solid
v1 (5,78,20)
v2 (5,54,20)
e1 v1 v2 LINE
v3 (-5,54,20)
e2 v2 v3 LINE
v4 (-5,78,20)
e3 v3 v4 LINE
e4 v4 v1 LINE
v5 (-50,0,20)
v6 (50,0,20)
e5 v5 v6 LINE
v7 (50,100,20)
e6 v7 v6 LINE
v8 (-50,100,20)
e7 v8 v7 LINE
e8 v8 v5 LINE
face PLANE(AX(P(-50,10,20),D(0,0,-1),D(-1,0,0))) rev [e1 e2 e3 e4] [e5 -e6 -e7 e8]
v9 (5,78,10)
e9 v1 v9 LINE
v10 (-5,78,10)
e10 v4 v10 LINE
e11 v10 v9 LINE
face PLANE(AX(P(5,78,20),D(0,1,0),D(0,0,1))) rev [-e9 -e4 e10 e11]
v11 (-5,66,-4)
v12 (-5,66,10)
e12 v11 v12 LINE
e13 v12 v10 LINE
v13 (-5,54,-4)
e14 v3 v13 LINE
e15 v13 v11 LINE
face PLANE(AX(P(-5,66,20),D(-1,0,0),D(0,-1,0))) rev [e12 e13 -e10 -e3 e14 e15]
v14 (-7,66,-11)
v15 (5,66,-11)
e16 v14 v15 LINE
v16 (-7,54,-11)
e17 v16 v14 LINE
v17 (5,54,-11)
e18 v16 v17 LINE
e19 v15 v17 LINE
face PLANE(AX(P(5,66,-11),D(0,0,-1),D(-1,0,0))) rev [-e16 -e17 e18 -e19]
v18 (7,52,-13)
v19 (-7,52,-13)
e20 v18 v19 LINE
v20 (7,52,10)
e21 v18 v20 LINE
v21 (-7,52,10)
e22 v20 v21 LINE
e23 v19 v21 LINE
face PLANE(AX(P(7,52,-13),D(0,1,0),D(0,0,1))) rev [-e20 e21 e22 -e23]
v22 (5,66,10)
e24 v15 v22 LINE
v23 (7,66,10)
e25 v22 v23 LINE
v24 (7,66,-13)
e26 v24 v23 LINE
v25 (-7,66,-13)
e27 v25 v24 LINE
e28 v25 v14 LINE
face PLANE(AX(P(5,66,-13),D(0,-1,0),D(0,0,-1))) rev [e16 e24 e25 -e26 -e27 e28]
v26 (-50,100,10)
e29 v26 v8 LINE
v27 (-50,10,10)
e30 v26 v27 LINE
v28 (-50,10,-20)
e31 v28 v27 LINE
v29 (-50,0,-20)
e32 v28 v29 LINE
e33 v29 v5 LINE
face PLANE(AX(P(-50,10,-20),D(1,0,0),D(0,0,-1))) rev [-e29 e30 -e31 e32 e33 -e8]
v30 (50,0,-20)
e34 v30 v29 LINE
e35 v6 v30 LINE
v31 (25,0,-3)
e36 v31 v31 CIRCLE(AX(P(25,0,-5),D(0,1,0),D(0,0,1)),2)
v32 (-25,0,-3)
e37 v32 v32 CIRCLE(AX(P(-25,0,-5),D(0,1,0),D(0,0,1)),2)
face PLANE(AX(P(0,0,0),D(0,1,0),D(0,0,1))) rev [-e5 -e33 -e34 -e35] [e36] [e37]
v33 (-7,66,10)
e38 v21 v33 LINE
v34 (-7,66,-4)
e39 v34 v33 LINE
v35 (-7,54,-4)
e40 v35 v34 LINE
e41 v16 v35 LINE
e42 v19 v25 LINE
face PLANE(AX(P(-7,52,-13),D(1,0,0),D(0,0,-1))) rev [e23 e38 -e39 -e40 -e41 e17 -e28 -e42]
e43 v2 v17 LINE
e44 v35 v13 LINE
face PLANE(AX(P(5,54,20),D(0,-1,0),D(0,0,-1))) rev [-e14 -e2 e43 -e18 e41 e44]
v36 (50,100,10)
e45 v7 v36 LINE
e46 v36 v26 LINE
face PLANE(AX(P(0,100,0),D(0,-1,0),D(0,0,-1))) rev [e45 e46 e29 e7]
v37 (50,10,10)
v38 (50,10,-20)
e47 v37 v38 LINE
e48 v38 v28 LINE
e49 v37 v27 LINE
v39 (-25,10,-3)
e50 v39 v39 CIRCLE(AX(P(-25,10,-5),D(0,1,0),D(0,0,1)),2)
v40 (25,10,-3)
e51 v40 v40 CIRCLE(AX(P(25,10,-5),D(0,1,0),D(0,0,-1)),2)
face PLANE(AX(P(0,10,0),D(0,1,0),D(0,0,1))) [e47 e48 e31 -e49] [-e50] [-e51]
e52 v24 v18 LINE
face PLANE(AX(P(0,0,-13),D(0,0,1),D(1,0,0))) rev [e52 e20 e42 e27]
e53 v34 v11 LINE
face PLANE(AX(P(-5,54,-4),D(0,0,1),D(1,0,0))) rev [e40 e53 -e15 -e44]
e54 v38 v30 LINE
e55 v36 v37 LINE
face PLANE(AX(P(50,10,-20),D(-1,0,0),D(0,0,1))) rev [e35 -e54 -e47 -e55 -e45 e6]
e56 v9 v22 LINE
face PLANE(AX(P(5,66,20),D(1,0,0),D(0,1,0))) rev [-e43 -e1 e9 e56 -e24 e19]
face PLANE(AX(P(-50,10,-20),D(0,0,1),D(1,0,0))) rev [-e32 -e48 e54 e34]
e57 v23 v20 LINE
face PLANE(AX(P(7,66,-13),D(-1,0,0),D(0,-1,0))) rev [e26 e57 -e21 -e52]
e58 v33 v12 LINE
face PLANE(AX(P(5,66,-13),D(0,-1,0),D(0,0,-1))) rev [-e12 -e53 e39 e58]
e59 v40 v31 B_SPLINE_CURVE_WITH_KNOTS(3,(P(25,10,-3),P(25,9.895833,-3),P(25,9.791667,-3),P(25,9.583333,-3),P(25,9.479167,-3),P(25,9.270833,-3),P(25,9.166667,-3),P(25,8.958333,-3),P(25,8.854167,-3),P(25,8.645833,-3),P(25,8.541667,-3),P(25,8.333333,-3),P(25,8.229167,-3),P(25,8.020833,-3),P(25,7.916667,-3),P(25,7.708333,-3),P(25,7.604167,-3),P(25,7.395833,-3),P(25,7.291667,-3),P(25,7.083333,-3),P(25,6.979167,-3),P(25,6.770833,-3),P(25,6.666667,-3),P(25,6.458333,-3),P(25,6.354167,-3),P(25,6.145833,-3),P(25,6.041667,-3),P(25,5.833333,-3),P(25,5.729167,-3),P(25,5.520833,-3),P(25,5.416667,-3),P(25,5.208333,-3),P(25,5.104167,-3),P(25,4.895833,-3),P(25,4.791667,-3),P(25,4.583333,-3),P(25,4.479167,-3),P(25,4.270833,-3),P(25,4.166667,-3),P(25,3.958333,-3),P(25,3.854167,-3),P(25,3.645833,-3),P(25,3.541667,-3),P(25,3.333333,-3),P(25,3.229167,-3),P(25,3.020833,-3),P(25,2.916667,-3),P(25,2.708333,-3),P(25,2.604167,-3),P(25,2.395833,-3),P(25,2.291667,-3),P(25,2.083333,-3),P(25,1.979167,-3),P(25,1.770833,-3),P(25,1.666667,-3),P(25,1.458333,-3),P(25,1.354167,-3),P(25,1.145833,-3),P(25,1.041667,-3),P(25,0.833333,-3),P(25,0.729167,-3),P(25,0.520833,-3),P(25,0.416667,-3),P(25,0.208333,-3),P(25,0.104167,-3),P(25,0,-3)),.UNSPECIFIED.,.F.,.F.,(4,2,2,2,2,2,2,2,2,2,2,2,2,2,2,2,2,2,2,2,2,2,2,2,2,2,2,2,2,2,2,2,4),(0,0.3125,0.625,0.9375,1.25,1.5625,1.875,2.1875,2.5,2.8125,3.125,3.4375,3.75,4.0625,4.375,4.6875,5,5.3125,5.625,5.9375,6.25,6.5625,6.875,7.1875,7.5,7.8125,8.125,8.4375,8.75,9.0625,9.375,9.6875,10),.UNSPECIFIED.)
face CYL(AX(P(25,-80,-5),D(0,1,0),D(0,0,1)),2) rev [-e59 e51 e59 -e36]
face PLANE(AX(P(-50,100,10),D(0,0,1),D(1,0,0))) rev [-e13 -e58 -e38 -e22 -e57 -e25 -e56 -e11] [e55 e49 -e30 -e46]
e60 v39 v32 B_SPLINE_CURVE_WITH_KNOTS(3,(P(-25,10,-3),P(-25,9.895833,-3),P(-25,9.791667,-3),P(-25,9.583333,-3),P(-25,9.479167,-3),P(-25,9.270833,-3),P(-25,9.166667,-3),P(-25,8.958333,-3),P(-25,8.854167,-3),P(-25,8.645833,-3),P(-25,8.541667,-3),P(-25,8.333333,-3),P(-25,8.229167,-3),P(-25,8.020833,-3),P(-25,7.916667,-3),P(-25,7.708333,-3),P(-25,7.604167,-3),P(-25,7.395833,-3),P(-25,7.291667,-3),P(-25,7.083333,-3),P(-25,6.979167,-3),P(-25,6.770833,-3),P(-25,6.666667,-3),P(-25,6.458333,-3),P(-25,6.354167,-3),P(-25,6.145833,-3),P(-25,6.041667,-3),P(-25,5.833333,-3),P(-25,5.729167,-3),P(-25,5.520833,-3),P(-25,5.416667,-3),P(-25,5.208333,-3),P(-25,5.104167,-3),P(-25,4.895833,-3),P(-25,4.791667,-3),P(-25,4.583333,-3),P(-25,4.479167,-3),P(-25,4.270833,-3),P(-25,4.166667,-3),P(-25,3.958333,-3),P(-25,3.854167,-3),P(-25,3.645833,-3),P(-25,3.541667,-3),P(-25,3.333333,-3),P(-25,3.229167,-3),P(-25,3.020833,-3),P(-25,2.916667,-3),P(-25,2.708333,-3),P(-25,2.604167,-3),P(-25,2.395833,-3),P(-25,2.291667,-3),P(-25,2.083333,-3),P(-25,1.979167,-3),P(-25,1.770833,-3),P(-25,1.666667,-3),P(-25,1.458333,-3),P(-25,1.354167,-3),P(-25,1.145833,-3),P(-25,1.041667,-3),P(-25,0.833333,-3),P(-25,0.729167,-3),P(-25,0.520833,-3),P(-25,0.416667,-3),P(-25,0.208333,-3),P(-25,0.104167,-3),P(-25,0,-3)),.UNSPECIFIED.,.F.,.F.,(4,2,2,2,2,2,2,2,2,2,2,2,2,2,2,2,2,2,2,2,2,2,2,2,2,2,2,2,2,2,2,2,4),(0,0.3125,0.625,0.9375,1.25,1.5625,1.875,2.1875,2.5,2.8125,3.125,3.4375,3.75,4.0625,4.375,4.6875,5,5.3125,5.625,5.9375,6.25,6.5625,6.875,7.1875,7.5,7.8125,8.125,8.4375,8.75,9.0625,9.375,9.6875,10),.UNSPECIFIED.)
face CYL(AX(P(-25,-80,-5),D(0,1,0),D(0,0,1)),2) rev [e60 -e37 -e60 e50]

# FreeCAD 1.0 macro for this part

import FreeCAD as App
import Part
import Sketcher

doc = App.newDocument("Part")
body = doc.addObject("PartDesign::Body", "Body")

# Sketch on XZ plane
sketch1 = body.newObject("Sketcher::SketchObject", "Sketch")
sketch1.AttachmentSupport = (doc.getObject("XZ_Plane"), [""])
sketch1.MapMode = "FlatFace"
sketch1.addGeometry(Part.LineSegment(App.Vector(-50, -20, 0), App.Vector(-50, 20, 0)), False)
sketch1.addGeometry(Part.LineSegment(App.Vector(-50, 20, 0), App.Vector(50, 20, 0)), False)
sketch1.addGeometry(Part.LineSegment(App.Vector(50, 20, 0), App.Vector(50, -20, 0)), False)
sketch1.addGeometry(Part.LineSegment(App.Vector(50, -20, 0), App.Vector(-50, -20, 0)), False)
sketch1.addConstraint(Sketcher.Constraint("Coincident", 0, 2, 1, 1))
sketch1.addConstraint(Sketcher.Constraint("Coincident", 1, 2, 2, 1))
sketch1.addConstraint(Sketcher.Constraint("Coincident", 2, 2, 3, 1))
sketch1.addConstraint(Sketcher.Constraint("Coincident", 3, 2, 0, 1))
sketch1.addConstraint(Sketcher.Constraint("Vertical", 0))
sketch1.addConstraint(Sketcher.Constraint("Horizontal", 1))
sketch1.addConstraint(Sketcher.Constraint("Vertical", 2))
sketch1.addConstraint(Sketcher.Constraint("Horizontal", 3))
sketch1.addConstraint(Sketcher.Constraint("Symmetric", 0, 2, 2, 2, -1, 1))
sketch1.addConstraint(Sketcher.Constraint("DistanceX", 1, 1, 1, 2, 100.0))
sketch1.addConstraint(Sketcher.Constraint("DistanceY", 0, 1, 0, 2, 40.0))
pad1 = body.newObject("PartDesign::Pad", "Pad")
pad1.Profile = sketch1
pad1.Length = 10
pad1.Reversed = True

# Sketch on XZ plane
sketch2 = body.newObject("Sketcher::SketchObject", "Sketch001")
sketch2.AttachmentSupport = (doc.getObject("XZ_Plane"), [""])
sketch2.MapMode = "FlatFace"
sketch2.AttachmentOffset = App.Placement(App.Vector(0, 0, -10), App.Rotation())
sketch2.addGeometry(Part.LineSegment(App.Vector(-50, 10, 0), App.Vector(-50, 20, 0)), False)
sketch2.addGeometry(Part.LineSegment(App.Vector(-50, 20, 0), App.Vector(50, 20, 0)), False)
sketch2.addGeometry(Part.LineSegment(App.Vector(50, 20, 0), App.Vector(50, 10, 0)), False)
sketch2.addGeometry(Part.LineSegment(App.Vector(50, 10, 0), App.Vector(-50, 10, 0)), False)
sketch2.addConstraint(Sketcher.Constraint("Coincident", 0, 2, 1, 1))
sketch2.addConstraint(Sketcher.Constraint("Coincident", 1, 2, 2, 1))
sketch2.addConstraint(Sketcher.Constraint("Coincident", 2, 2, 3, 1))
sketch2.addConstraint(Sketcher.Constraint("Coincident", 3, 2, 0, 1))
sketch2.addConstraint(Sketcher.Constraint("Vertical", 0))
sketch2.addConstraint(Sketcher.Constraint("Horizontal", 1))
sketch2.addConstraint(Sketcher.Constraint("Vertical", 2))
sketch2.addConstraint(Sketcher.Constraint("Horizontal", 3))
sketch2.addConstraint(Sketcher.Constraint("DistanceX", 1, 1, 1, 2, 100.0))
sketch2.addConstraint(Sketcher.Constraint("DistanceY", 0, 1, 0, 2, 10.0))
sketch2.addConstraint(Sketcher.Constraint("DistanceX", 0, 2, -1, 1, 50.0))
sketch2.addConstraint(Sketcher.Constraint("DistanceY", -1, 1, 0, 2, 20.0))
pad2 = body.newObject("PartDesign::Pad", "Pad001")
pad2.Profile = sketch2
pad2.Length = 90
pad2.Reversed = True

# Sketch on XZ plane
sketch3 = body.newObject("Sketcher::SketchObject", "Sketch002")
sketch3.AttachmentSupport = (doc.getObject("XZ_Plane"), [""])
sketch3.MapMode = "FlatFace"
sketch3.AttachmentOffset = App.Placement(App.Vector(0, 0, -10), App.Rotation())
sketch3.addGeometry(Part.Circle(App.Vector(-25, -5, 0), App.Vector(0, 0, 1), 2), False)
sketch3.addGeometry(Part.Circle(App.Vector(25, -5, 0), App.Vector(0, 0, 1), 2), False)
sketch3.addConstraint(Sketcher.Constraint("Equal", 0, 1))
sketch3.addConstraint(Sketcher.Constraint("Symmetric", 0, 3, 1, 3, -2))
sketch3.addConstraint(Sketcher.Constraint("Diameter", 0, 4.0))
sketch3.addConstraint(Sketcher.Constraint("DistanceX", 0, 3, -1, 1, 25.0))
sketch3.addConstraint(Sketcher.Constraint("DistanceY", 0, 3, -1, 1, 5.0))
pocket1 = body.newObject("PartDesign::Pocket", "Pocket")
pocket1.Profile = sketch3
pocket1.Length = 90
pocket1.Reversed = True

# Sketch on XY plane
sketch4 = body.newObject("Sketcher::SketchObject", "Sketch003")
sketch4.AttachmentSupport = (doc.getObject("XY_Plane"), [""])
sketch4.MapMode = "FlatFace"
sketch4.AttachmentOffset = App.Placement(App.Vector(0, 0, 10), App.Rotation())
sketch4.addGeometry(Part.LineSegment(App.Vector(5, 66, 0), App.Vector(5, 54, 0)), False)
sketch4.addGeometry(Part.LineSegment(App.Vector(5, 54, 0), App.Vector(-5, 54, 0)), False)
sketch4.addGeometry(Part.LineSegment(App.Vector(-5, 54, 0), App.Vector(-5, 66, 0)), False)
sketch4.addGeometry(Part.LineSegment(App.Vector(-5, 66, 0), App.Vector(5, 66, 0)), False)
sketch4.addConstraint(Sketcher.Constraint("Coincident", 0, 2, 1, 1))
sketch4.addConstraint(Sketcher.Constraint("Coincident", 1, 2, 2, 1))
sketch4.addConstraint(Sketcher.Constraint("Coincident", 2, 2, 3, 1))
sketch4.addConstraint(Sketcher.Constraint("Coincident", 3, 2, 0, 1))
sketch4.addConstraint(Sketcher.Constraint("Vertical", 0))
sketch4.addConstraint(Sketcher.Constraint("Horizontal", 1))
sketch4.addConstraint(Sketcher.Constraint("Vertical", 2))
sketch4.addConstraint(Sketcher.Constraint("Horizontal", 3))
sketch4.addConstraint(Sketcher.Constraint("DistanceX", 1, 2, 1, 1, 10.0))
sketch4.addConstraint(Sketcher.Constraint("DistanceY", 0, 2, 0, 1, 12.0))
sketch4.addConstraint(Sketcher.Constraint("DistanceX", -1, 1, 0, 2, 5.0))
sketch4.addConstraint(Sketcher.Constraint("DistanceY", -1, 1, 0, 2, 54.0))
pocket2 = body.newObject("PartDesign::Pocket", "Pocket001")
pocket2.Profile = sketch4
pocket2.Length = 10
pocket2.Reversed = True

# Sketch on XY plane
sketch5 = body.newObject("Sketcher::SketchObject", "Sketch004")
sketch5.AttachmentSupport = (doc.getObject("XY_Plane"), [""])
sketch5.MapMode = "FlatFace"
sketch5.AttachmentOffset = App.Placement(App.Vector(0, 0, 10), App.Rotation())
sketch5.addGeometry(Part.LineSegment(App.Vector(5, 54, 0), App.Vector(5, 66, 0)), False)
sketch5.addGeometry(Part.LineSegment(App.Vector(5, 66, 0), App.Vector(7, 66, 0)), False)
sketch5.addGeometry(Part.LineSegment(App.Vector(7, 66, 0), App.Vector(7, 52, 0)), False)
sketch5.addGeometry(Part.LineSegment(App.Vector(7, 52, 0), App.Vector(-7, 52, 0)), False)
sketch5.addGeometry(Part.LineSegment(App.Vector(-7, 52, 0), App.Vector(-7, 66, 0)), False)
sketch5.addGeometry(Part.LineSegment(App.Vector(-7, 66, 0), App.Vector(-5, 66, 0)), False)
sketch5.addGeometry(Part.LineSegment(App.Vector(-5, 66, 0), App.Vector(-5, 54, 0)), False)
sketch5.addGeometry(Part.LineSegment(App.Vector(-5, 54, 0), App.Vector(5, 54, 0)), False)
sketch5.addConstraint(Sketcher.Constraint("Coincident", 0, 2, 1, 1))
sketch5.addConstraint(Sketcher.Constraint("Coincident", 1, 2, 2, 1))
sketch5.addConstraint(Sketcher.Constraint("Coincident", 2, 2, 3, 1))
sketch5.addConstraint(Sketcher.Constraint("Coincident", 3, 2, 4, 1))
sketch5.addConstraint(Sketcher.Constraint("Coincident", 4, 2, 5, 1))
sketch5.addConstraint(Sketcher.Constraint("Coincident", 5, 2, 6, 1))
sketch5.addConstraint(Sketcher.Constraint("Coincident", 6, 2, 7, 1))
sketch5.addConstraint(Sketcher.Constraint("Coincident", 7, 2, 0, 1))
sketch5.addConstraint(Sketcher.Constraint("Vertical", 0))
sketch5.addConstraint(Sketcher.Constraint("Horizontal", 1))
sketch5.addConstraint(Sketcher.Constraint("Vertical", 2))
sketch5.addConstraint(Sketcher.Constraint("Horizontal", 3))
sketch5.addConstraint(Sketcher.Constraint("Vertical", 4))
sketch5.addConstraint(Sketcher.Constraint("Horizontal", 5))
sketch5.addConstraint(Sketcher.Constraint("Vertical", 6))
sketch5.addConstraint(Sketcher.Constraint("Horizontal", 7))
sketch5.addConstraint(Sketcher.Constraint("Symmetric", 1, 2, 4, 2, -2))
sketch5.addConstraint(Sketcher.Constraint("Equal", 1, 5))
sketch5.addConstraint(Sketcher.Constraint("Equal", 3, 2))
sketch5.addConstraint(Sketcher.Constraint("DistanceX", 1, 1, 1, 2, 2.0))
sketch5.addConstraint(Sketcher.Constraint("DistanceX", 3, 2, 3, 1, 14.0))
sketch5.addConstraint(Sketcher.Constraint("DistanceY", 0, 1, 0, 2, 12.0))
sketch5.addConstraint(Sketcher.Constraint("DistanceY", -1, 1, 0, 2, 66.0))
pad3 = body.newObject("PartDesign::Pad", "Pad002")
pad3.Profile = sketch5
pad3.Length = 23
pad3.Reversed = True

# Sketch on XZ plane
sketch6 = body.newObject("Sketcher::SketchObject", "Sketch005")
sketch6.AttachmentSupport = (doc.getObject("XZ_Plane"), [""])
sketch6.MapMode = "FlatFace"
sketch6.AttachmentOffset = App.Placement(App.Vector(0, 0, -54), App.Rotation())
sketch6.addGeometry(Part.LineSegment(App.Vector(-5, -13, 0), App.Vector(-5, -11, 0)), False)
sketch6.addGeometry(Part.LineSegment(App.Vector(-5, -11, 0), App.Vector(5, -11, 0)), False)
sketch6.addGeometry(Part.LineSegment(App.Vector(5, -11, 0), App.Vector(5, -13, 0)), False)
sketch6.addGeometry(Part.LineSegment(App.Vector(5, -13, 0), App.Vector(-5, -13, 0)), False)
sketch6.addConstraint(Sketcher.Constraint("Coincident", 0, 2, 1, 1))
sketch6.addConstraint(Sketcher.Constraint("Coincident", 1, 2, 2, 1))
sketch6.addConstraint(Sketcher.Constraint("Coincident", 2, 2, 3, 1))
sketch6.addConstraint(Sketcher.Constraint("Coincident", 3, 2, 0, 1))
sketch6.addConstraint(Sketcher.Constraint("Vertical", 0))
sketch6.addConstraint(Sketcher.Constraint("Horizontal", 1))
sketch6.addConstraint(Sketcher.Constraint("Vertical", 2))
sketch6.addConstraint(Sketcher.Constraint("Horizontal", 3))
sketch6.addConstraint(Sketcher.Constraint("DistanceX", 1, 1, 1, 2, 10.0))
sketch6.addConstraint(Sketcher.Constraint("DistanceY", 0, 1, 0, 2, 2.0))
sketch6.addConstraint(Sketcher.Constraint("DistanceX", 0, 2, -1, 1, 5.0))
sketch6.addConstraint(Sketcher.Constraint("DistanceY", 0, 2, -1, 1, 11.0))
pad4 = body.newObject("PartDesign::Pad", "Pad003")
pad4.Profile = sketch6
pad4.Length = 12
pad4.Reversed = True

# Sketch on XZ plane
sketch7 = body.newObject("Sketcher::SketchObject", "Sketch006")
sketch7.AttachmentSupport = (doc.getObject("XZ_Plane"), [""])
sketch7.MapMode = "FlatFace"
sketch7.AttachmentOffset = App.Placement(App.Vector(0, 0, -66), App.Rotation())
sketch7.addGeometry(Part.LineSegment(App.Vector(-7, -11, 0), App.Vector(-7, -4, 0)), False)
sketch7.addGeometry(Part.LineSegment(App.Vector(-7, -4, 0), App.Vector(-5, -4, 0)), False)
sketch7.addGeometry(Part.LineSegment(App.Vector(-5, -4, 0), App.Vector(-5, -11, 0)), False)
sketch7.addGeometry(Part.LineSegment(App.Vector(-5, -11, 0), App.Vector(-7, -11, 0)), False)
sketch7.addConstraint(Sketcher.Constraint("Coincident", 0, 2, 1, 1))
sketch7.addConstraint(Sketcher.Constraint("Coincident", 1, 2, 2, 1))
sketch7.addConstraint(Sketcher.Constraint("Coincident", 2, 2, 3, 1))
sketch7.addConstraint(Sketcher.Constraint("Coincident", 3, 2, 0, 1))
sketch7.addConstraint(Sketcher.Constraint("Vertical", 0))
sketch7.addConstraint(Sketcher.Constraint("Horizontal", 1))
sketch7.addConstraint(Sketcher.Constraint("Vertical", 2))
sketch7.addConstraint(Sketcher.Constraint("Horizontal", 3))
sketch7.addConstraint(Sketcher.Constraint("DistanceX", 1, 1, 1, 2, 2.0))
sketch7.addConstraint(Sketcher.Constraint("DistanceY", 0, 1, 0, 2, 7.0))
sketch7.addConstraint(Sketcher.Constraint("DistanceX", 0, 2, -1, 1, 7.0))
sketch7.addConstraint(Sketcher.Constraint("DistanceY", 0, 2, -1, 1, 4.0))
pocket3 = body.newObject("PartDesign::Pocket", "Pocket002")
pocket3.Profile = sketch7
pocket3.Length = 12
pocket3.Reversed = True

# Sketch on XY plane
sketch8 = body.newObject("Sketcher::SketchObject", "Sketch007")
sketch8.AttachmentSupport = (doc.getObject("XY_Plane"), [""])
sketch8.MapMode = "FlatFace"
sketch8.AttachmentOffset = App.Placement(App.Vector(0, 0, 10), App.Rotation())
sketch8.addGeometry(Part.LineSegment(App.Vector(5, 78, 0), App.Vector(5, 66, 0)), False)
sketch8.addGeometry(Part.LineSegment(App.Vector(5, 66, 0), App.Vector(-5, 66, 0)), False)
sketch8.addGeometry(Part.LineSegment(App.Vector(-5, 66, 0), App.Vector(-5, 78, 0)), False)
sketch8.addGeometry(Part.LineSegment(App.Vector(-5, 78, 0), App.Vector(5, 78, 0)), False)
sketch8.addConstraint(Sketcher.Constraint("Coincident", 0, 2, 1, 1))
sketch8.addConstraint(Sketcher.Constraint("Coincident", 1, 2, 2, 1))
sketch8.addConstraint(Sketcher.Constraint("Coincident", 2, 2, 3, 1))
sketch8.addConstraint(Sketcher.Constraint("Coincident", 3, 2, 0, 1))
sketch8.addConstraint(Sketcher.Constraint("Vertical", 0))
sketch8.addConstraint(Sketcher.Constraint("Horizontal", 1))
sketch8.addConstraint(Sketcher.Constraint("Vertical", 2))
sketch8.addConstraint(Sketcher.Constraint("Horizontal", 3))
sketch8.addConstraint(Sketcher.Constraint("DistanceX", 1, 2, 1, 1, 10.0))
sketch8.addConstraint(Sketcher.Constraint("DistanceY", 0, 2, 0, 1, 12.0))
sketch8.addConstraint(Sketcher.Constraint("DistanceX", -1, 1, 0, 2, 5.0))
sketch8.addConstraint(Sketcher.Constraint("DistanceY", -1, 1, 0, 2, 66.0))
pocket4 = body.newObject("PartDesign::Pocket", "Pocket003")
pocket4.Profile = sketch8
pocket4.Length = 10
pocket4.Reversed = True

doc.recompute()
